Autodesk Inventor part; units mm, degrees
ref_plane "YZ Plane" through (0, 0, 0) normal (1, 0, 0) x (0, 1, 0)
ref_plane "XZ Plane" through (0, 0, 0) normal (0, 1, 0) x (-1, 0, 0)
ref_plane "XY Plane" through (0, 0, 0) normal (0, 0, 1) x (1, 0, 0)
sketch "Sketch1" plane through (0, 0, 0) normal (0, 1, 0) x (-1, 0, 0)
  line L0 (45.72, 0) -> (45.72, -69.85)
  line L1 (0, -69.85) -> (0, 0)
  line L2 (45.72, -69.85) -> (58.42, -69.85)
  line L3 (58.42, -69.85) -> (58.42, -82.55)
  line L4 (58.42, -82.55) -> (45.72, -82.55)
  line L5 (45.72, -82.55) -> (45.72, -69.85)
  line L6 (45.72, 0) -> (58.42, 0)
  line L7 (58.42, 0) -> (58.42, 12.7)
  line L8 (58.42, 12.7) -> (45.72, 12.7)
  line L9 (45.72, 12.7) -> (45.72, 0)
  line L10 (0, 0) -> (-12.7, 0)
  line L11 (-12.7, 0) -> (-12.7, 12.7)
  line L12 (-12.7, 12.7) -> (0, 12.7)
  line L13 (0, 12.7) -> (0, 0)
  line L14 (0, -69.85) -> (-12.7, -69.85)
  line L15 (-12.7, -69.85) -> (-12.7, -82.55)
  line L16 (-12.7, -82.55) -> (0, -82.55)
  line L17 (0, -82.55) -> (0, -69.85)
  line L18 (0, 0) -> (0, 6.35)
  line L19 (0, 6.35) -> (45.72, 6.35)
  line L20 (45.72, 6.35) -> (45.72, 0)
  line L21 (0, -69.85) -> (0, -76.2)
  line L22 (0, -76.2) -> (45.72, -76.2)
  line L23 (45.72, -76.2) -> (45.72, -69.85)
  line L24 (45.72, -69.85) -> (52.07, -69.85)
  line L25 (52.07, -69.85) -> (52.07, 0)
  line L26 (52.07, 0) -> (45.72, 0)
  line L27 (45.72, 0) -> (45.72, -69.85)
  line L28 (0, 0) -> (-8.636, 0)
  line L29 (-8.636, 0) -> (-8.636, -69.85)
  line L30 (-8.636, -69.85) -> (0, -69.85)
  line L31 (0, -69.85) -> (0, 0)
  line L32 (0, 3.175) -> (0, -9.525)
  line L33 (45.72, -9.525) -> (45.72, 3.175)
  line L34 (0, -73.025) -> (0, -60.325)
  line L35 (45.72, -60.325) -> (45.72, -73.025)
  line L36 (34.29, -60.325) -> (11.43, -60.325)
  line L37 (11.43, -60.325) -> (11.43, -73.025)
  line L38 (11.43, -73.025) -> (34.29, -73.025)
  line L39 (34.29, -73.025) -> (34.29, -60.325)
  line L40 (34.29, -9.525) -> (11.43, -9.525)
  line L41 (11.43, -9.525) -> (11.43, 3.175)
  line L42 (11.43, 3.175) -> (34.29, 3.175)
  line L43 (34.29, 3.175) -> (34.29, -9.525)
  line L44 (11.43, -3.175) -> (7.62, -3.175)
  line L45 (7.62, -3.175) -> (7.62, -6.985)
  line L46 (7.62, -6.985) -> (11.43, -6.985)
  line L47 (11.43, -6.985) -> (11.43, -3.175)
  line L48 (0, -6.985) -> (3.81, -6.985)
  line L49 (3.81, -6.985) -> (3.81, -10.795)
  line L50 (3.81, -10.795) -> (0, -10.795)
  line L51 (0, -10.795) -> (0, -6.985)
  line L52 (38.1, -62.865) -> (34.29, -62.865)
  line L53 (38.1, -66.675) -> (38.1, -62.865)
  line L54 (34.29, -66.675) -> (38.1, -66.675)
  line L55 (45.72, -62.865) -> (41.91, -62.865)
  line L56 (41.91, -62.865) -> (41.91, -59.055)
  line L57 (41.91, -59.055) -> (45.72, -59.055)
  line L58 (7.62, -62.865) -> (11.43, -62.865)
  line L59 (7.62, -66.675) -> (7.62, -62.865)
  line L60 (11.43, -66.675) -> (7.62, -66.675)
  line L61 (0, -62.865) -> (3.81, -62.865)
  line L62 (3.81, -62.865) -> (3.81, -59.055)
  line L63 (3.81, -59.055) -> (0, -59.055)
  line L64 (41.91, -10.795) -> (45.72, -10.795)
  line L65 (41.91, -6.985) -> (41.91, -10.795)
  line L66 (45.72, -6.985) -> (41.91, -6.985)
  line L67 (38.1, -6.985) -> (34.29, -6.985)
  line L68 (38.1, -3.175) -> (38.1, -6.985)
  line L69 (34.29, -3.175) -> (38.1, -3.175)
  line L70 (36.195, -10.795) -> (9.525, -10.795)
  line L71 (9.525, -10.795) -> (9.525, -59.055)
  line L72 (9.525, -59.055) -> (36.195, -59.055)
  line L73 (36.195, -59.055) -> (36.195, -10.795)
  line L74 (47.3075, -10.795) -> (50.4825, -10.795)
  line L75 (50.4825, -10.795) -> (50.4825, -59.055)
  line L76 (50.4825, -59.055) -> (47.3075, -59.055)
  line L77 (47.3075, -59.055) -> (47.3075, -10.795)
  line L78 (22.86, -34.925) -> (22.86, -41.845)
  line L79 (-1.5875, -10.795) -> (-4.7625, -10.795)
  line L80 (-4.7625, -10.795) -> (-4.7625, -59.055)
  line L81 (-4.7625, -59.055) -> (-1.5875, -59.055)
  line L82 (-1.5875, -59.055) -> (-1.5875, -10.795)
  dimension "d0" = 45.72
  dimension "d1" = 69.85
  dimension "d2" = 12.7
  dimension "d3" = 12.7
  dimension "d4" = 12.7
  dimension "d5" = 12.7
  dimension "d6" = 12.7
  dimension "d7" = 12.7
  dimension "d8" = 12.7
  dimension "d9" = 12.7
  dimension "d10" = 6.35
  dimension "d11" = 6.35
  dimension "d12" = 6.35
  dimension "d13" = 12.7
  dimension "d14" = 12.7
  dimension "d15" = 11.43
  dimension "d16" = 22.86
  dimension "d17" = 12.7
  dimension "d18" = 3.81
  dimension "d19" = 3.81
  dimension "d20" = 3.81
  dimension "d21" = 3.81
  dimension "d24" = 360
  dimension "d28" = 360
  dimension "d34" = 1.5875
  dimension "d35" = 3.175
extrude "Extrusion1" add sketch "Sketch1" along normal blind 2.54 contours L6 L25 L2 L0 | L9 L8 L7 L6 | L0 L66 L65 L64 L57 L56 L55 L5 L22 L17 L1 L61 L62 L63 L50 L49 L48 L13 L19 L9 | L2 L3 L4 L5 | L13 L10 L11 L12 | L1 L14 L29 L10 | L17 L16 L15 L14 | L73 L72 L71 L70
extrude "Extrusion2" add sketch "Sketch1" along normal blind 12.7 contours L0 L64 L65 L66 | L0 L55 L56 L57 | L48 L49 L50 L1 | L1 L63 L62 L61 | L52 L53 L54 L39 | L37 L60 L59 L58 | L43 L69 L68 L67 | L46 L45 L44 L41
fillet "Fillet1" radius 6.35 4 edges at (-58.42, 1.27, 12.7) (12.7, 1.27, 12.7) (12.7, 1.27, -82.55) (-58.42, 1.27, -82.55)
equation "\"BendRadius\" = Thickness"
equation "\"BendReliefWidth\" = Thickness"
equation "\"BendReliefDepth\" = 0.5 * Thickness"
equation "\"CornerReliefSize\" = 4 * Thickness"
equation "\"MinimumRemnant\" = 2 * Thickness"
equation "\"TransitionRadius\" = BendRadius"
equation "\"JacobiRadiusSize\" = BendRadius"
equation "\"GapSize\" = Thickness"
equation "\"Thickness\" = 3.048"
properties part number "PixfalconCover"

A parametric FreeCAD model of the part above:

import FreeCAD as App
import Part
import Sketcher

V = App.Vector
Q = App.Units.Quantity


def edges_at(feature, points):
    """Names of the edges that pass closest to the given points."""
    edges = feature.Shape.Edges
    near = lambda p: min(range(len(edges)), key=lambda i: edges[i].distToShape(Part.Vertex(*p))[0])
    return sorted({f"Edge{near(p) + 1}" for p in points})


def add_polygon(sketch, points):
    """Adds a closed chain of lines whose ends are joined by coincident constraints."""
    first, n = sketch.GeometryCount, len(points)
    for a, b in zip(points, points[1:] + points[:1]):
        sketch.addGeometry(Part.LineSegment(App.Vector(*a, 0), App.Vector(*b, 0)), False)
    for i in range(n):
        sketch.addConstraint(Sketcher.Constraint("Coincident", first + i, 2, first + (i + 1) % n, 1))

doc = App.newDocument("Part")
body = doc.addObject("PartDesign::Body", "Body")

# Sketch on XZ plane
sketch1 = doc.addObject("Sketcher::SketchObject", "Sketch")
body.addObject(sketch1)
sketch1.AttachmentSupport = (doc.XZ_Plane, [""])
sketch1.MapMode = "FlatFace"
add_polygon(sketch1, [(-52.1, -69.8), (-52.1, 0), (-58.4, 0), (-58.4, 12.7), (-45.7, 12.7), (-45.7, 6.3), (0, 6.3), (0, 12.7), (12.7, 12.7), (12.7, 0), (8.6, 0), (8.6, -69.8), (12.7, -69.8), (12.7, -82.5), (0, -82.5), (0, -76.2), (-45.7, -76.2), (-45.7, -82.5), (-58.4, -82.5), (-58.4, -69.8)])  # lines 0-19
add_polygon(sketch1, [(-45.7, -62.9), (-41.9, -62.9), (-41.9, -59.1), (-45.7, -59.1)])  # lines 20-23
add_polygon(sketch1, [(-45.7, -10.8), (-41.9, -10.8), (-41.9, -7), (-45.7, -7)])  # lines 24-27
add_polygon(sketch1, [(-47.3, -59.1), (-47.3, -10.8), (-50.5, -10.8), (-50.5, -59.1)])  # lines 28-31
add_polygon(sketch1, [(-11.4, -7), (-7.6, -7), (-7.6, -3.2), (-11.4, -3.2), (-11.4, 3.2), (-34.3, 3.2), (-34.3, -3.2), (-38.1, -3.2), (-38.1, -7), (-34.3, -7), (-34.3, -9.5), (-11.4, -9.5)])  # lines 32-43
add_polygon(sketch1, [(-3.8, -62.9), (0, -62.9), (0, -59.1), (-3.8, -59.1)])  # lines 44-47
add_polygon(sketch1, [(-3.8, -10.8), (0, -10.8), (0, -7), (-3.8, -7)])  # lines 48-51
add_polygon(sketch1, [(-11.4, -60.3), (-34.3, -60.3), (-34.3, -62.9), (-38.1, -62.9), (-38.1, -66.7), (-34.3, -66.7), (-34.3, -73), (-11.4, -73), (-11.4, -66.7), (-7.6, -66.7), (-7.6, -62.9), (-11.4, -62.9)])  # lines 52-63
add_polygon(sketch1, [(4.8, -59.1), (4.8, -10.8), (1.6, -10.8), (1.6, -59.1)])  # lines 64-67
sketch1.addConstraint(Sketcher.Constraint("Vertical", 0))
sketch1.addConstraint(Sketcher.Constraint("Horizontal", 1))
sketch1.addConstraint(Sketcher.Constraint("Vertical", 2))
sketch1.addConstraint(Sketcher.Constraint("Horizontal", 3))
sketch1.addConstraint(Sketcher.Constraint("Vertical", 4))
sketch1.addConstraint(Sketcher.Constraint("Horizontal", 5))
sketch1.addConstraint(Sketcher.Constraint("Vertical", 6))
sketch1.addConstraint(Sketcher.Constraint("Horizontal", 7))
sketch1.addConstraint(Sketcher.Constraint("Vertical", 8))
sketch1.addConstraint(Sketcher.Constraint("Horizontal", 9))
sketch1.addConstraint(Sketcher.Constraint("Vertical", 10))
sketch1.addConstraint(Sketcher.Constraint("Horizontal", 11))
sketch1.addConstraint(Sketcher.Constraint("Vertical", 12))
sketch1.addConstraint(Sketcher.Constraint("Horizontal", 13))
sketch1.addConstraint(Sketcher.Constraint("Vertical", 14))
sketch1.addConstraint(Sketcher.Constraint("Horizontal", 15))
sketch1.addConstraint(Sketcher.Constraint("Vertical", 16))
sketch1.addConstraint(Sketcher.Constraint("Horizontal", 17))
sketch1.addConstraint(Sketcher.Constraint("Vertical", 18))
sketch1.addConstraint(Sketcher.Constraint("Horizontal", 19))
sketch1.addConstraint(Sketcher.Constraint("Horizontal", 20))
sketch1.addConstraint(Sketcher.Constraint("Vertical", 21))
sketch1.addConstraint(Sketcher.Constraint("Horizontal", 22))
sketch1.addConstraint(Sketcher.Constraint("Vertical", 23))
sketch1.addConstraint(Sketcher.Constraint("Horizontal", 24))
sketch1.addConstraint(Sketcher.Constraint("Vertical", 25))
sketch1.addConstraint(Sketcher.Constraint("Horizontal", 26))
sketch1.addConstraint(Sketcher.Constraint("Vertical", 27))
sketch1.addConstraint(Sketcher.Constraint("Vertical", 28))
sketch1.addConstraint(Sketcher.Constraint("Horizontal", 29))
sketch1.addConstraint(Sketcher.Constraint("Vertical", 30))
sketch1.addConstraint(Sketcher.Constraint("Horizontal", 31))
sketch1.addConstraint(Sketcher.Constraint("Horizontal", 32))
sketch1.addConstraint(Sketcher.Constraint("Vertical", 33))
sketch1.addConstraint(Sketcher.Constraint("Horizontal", 34))
sketch1.addConstraint(Sketcher.Constraint("Vertical", 35))
sketch1.addConstraint(Sketcher.Constraint("Horizontal", 36))
sketch1.addConstraint(Sketcher.Constraint("Vertical", 37))
sketch1.addConstraint(Sketcher.Constraint("Horizontal", 38))
sketch1.addConstraint(Sketcher.Constraint("Vertical", 39))
sketch1.addConstraint(Sketcher.Constraint("Horizontal", 40))
sketch1.addConstraint(Sketcher.Constraint("Vertical", 41))
sketch1.addConstraint(Sketcher.Constraint("Horizontal", 42))
sketch1.addConstraint(Sketcher.Constraint("Vertical", 43))
sketch1.addConstraint(Sketcher.Constraint("Horizontal", 44))
sketch1.addConstraint(Sketcher.Constraint("Vertical", 45))
sketch1.addConstraint(Sketcher.Constraint("Horizontal", 46))
sketch1.addConstraint(Sketcher.Constraint("Vertical", 47))
sketch1.addConstraint(Sketcher.Constraint("Horizontal", 48))
sketch1.addConstraint(Sketcher.Constraint("Vertical", 49))
sketch1.addConstraint(Sketcher.Constraint("Horizontal", 50))
sketch1.addConstraint(Sketcher.Constraint("Vertical", 51))
sketch1.addConstraint(Sketcher.Constraint("Horizontal", 52))
sketch1.addConstraint(Sketcher.Constraint("Vertical", 53))
sketch1.addConstraint(Sketcher.Constraint("Horizontal", 54))
sketch1.addConstraint(Sketcher.Constraint("Vertical", 55))
sketch1.addConstraint(Sketcher.Constraint("Horizontal", 56))
sketch1.addConstraint(Sketcher.Constraint("Vertical", 57))
sketch1.addConstraint(Sketcher.Constraint("Horizontal", 58))
sketch1.addConstraint(Sketcher.Constraint("Vertical", 59))
sketch1.addConstraint(Sketcher.Constraint("Horizontal", 60))
sketch1.addConstraint(Sketcher.Constraint("Vertical", 61))
sketch1.addConstraint(Sketcher.Constraint("Horizontal", 62))
sketch1.addConstraint(Sketcher.Constraint("Vertical", 63))
sketch1.addConstraint(Sketcher.Constraint("Vertical", 64))
sketch1.addConstraint(Sketcher.Constraint("Horizontal", 65))
sketch1.addConstraint(Sketcher.Constraint("Vertical", 66))
sketch1.addConstraint(Sketcher.Constraint("Horizontal", 67))
sketch1.addConstraint(Sketcher.Constraint("PointOnObject", 0, 2, -1))
sketch1.addConstraint(Sketcher.Constraint("PointOnObject", 5, 2, -2))
sketch1.addConstraint(Sketcher.Constraint("PointOnObject", 8, 2, -1))
sketch1.addConstraint(Sketcher.Constraint("PointOnObject", 13, 2, -2))
sketch1.addConstraint(Sketcher.Constraint("PointOnObject", 44, 2, -2))
sketch1.addConstraint(Sketcher.Constraint("PointOnObject", 48, 2, -2))
sketch1.addConstraint(Sketcher.Constraint("Horizontal", 3, 2, 6, 2))
sketch1.addConstraint(Sketcher.Constraint("Horizontal", 13, 2, 16, 2))
sketch1.addConstraint(Sketcher.Constraint("Horizontal", 11, 2, 18, 2))
sketch1.addConstraint(Sketcher.Constraint("Horizontal", 27, 2, 28, 2))
sketch1.addConstraint(Sketcher.Constraint("Horizontal", 22, 2, 30, 2))
sketch1.addConstraint(Sketcher.Constraint("Horizontal", 26, 2, 32, 2))
sketch1.addConstraint(Sketcher.Constraint("Horizontal", 34, 2, 37, 2))
sketch1.addConstraint(Sketcher.Constraint("Horizontal", 32, 2, 39, 2))
sketch1.addConstraint(Sketcher.Constraint("Horizontal", 23, 2, 44, 2))
sketch1.addConstraint(Sketcher.Constraint("Horizontal", 31, 2, 45, 2))
sketch1.addConstraint(Sketcher.Constraint("Horizontal", 29, 2, 48, 2))
sketch1.addConstraint(Sketcher.Constraint("Horizontal", 43, 2, 49, 2))
sketch1.addConstraint(Sketcher.Constraint("Horizontal", 47, 2, 53, 2))
sketch1.addConstraint(Sketcher.Constraint("Horizontal", 56, 2, 59, 2))
sketch1.addConstraint(Sketcher.Constraint("Horizontal", 54, 2, 61, 2))
sketch1.addConstraint(Sketcher.Constraint("Horizontal", 51, 2, 64, 2))
sketch1.addConstraint(Sketcher.Constraint("Horizontal", 46, 2, 66, 2))
sketch1.addConstraint(Sketcher.Constraint("Vertical", 8, 2, 11, 2))
sketch1.addConstraint(Sketcher.Constraint("Vertical", 4, 2, 15, 2))
sketch1.addConstraint(Sketcher.Constraint("Vertical", 2, 2, 17, 2))
sketch1.addConstraint(Sketcher.Constraint("Vertical", 16, 2, 22, 2))
sketch1.addConstraint(Sketcher.Constraint("Vertical", 21, 2, 24, 2))
sketch1.addConstraint(Sketcher.Constraint("Vertical", 23, 2, 26, 2))
sketch1.addConstraint(Sketcher.Constraint("Vertical", 37, 2, 40, 2))
sketch1.addConstraint(Sketcher.Constraint("Vertical", 35, 2, 42, 2))
sketch1.addConstraint(Sketcher.Constraint("Vertical", 47, 2, 50, 2))
sketch1.addConstraint(Sketcher.Constraint("Vertical", 41, 2, 52, 2))
sketch1.addConstraint(Sketcher.Constraint("Vertical", 39, 2, 54, 2))
sketch1.addConstraint(Sketcher.Constraint("Vertical", 53, 2, 56, 2))
sketch1.addConstraint(Sketcher.Constraint("Vertical", 43, 2, 58, 2))
sketch1.addConstraint(Sketcher.Constraint("Vertical", 33, 2, 60, 2))
sketch1.addConstraint(Sketcher.Constraint("Vertical", 59, 2, 62, 2))
sketch1.addConstraint(Sketcher.Constraint("Equal", 3, 7))
sketch1.addConstraint(Sketcher.Constraint("Equal", 26, 32))
sketch1.addConstraint(Sketcher.Constraint("Equal", 34, 38))
sketch1.addConstraint(Sketcher.Constraint("Equal", 40, 44))
sketch1.addConstraint(Sketcher.Constraint("Equal", 31, 65))
sketch1.addConstraint(Sketcher.Constraint("Equal", 17, 2))
sketch1.addConstraint(Sketcher.Constraint("Equal", 19, 4))
sketch1.addConstraint(Sketcher.Constraint("Equal", 8, 12))
sketch1.addConstraint(Sketcher.Constraint("Equal", 6, 14))
sketch1.addConstraint(Sketcher.Constraint("Equal", 62, 21))
sketch1.addConstraint(Sketcher.Constraint("Equal", 23, 25))
sketch1.addConstraint(Sketcher.Constraint("Equal", 27, 33))
sketch1.addConstraint(Sketcher.Constraint("Equal", 16, 35))
sketch1.addConstraint(Sketcher.Constraint("Equal", 43, 53))
sketch1.addConstraint(Sketcher.Constraint("Equal", 51, 55))
sketch1.addConstraint(Sketcher.Constraint("Equal", 37, 57))
sketch1.addConstraint(Sketcher.Constraint("DistanceX", 3, 1, 3, 2, Q("0.5 in")))
sketch1.addConstraint(Sketcher.Constraint("DistanceX", 5, 1, 5, 2, Q("1.8 in")))
sketch1.addConstraint(Sketcher.Constraint("DistanceX", 36, 2, 36, 1, Q("0.9 in")))
sketch1.addConstraint(Sketcher.Constraint("DistanceX", 1, 2, 1, 1, Q("0.25 in")))
sketch1.addConstraint(Sketcher.Constraint("DistanceX", 20, 1, 20, 2, Q("0.15 in")))
sketch1.addConstraint(Sketcher.Constraint("DistanceY", 0, 1, 0, 2, Q("2.75 in")))
sketch1.addConstraint(Sketcher.Constraint("DistanceX", 29, 2, 29, 1, Q("0.125 in")))
sketch1.addConstraint(Sketcher.Constraint("DistanceX", 34, 2, -1, 1, Q("0.45 in")))
sketch1.addConstraint(Sketcher.Constraint("DistanceY", 28, 1, 28, 2, Q("1.9 in")))
sketch1.addConstraint(Sketcher.Constraint("DistanceY", 41, 2, 41, 1, Q("0.1 in")))
sketch1.addConstraint(Sketcher.Constraint("DistanceY", 33, 2, -1, 1, Q("0.125 in")))
sketch1.addConstraint(Sketcher.Constraint("DistanceX", -1, 1, 65, 2, Q("0.0625 in")))
sketch1.addConstraint(Sketcher.Constraint("DistanceX", 9, 2, 9, 1, Q("0.16 in")))
sketch1.addConstraint(Sketcher.Constraint("DistanceX", 28, 2, -1, 1, Q("1.8625 in")))
pad1 = doc.addObject("PartDesign::Pad", "Pad")
body.addObject(pad1)
pad1.Profile = sketch1
pad1.Length = Q("0.1 in")
pad1.Reversed = True

# Sketch on XZ plane
sketch2 = doc.addObject("Sketcher::SketchObject", "Sketch001")
body.addObject(sketch2)
sketch2.AttachmentSupport = (doc.XZ_Plane, [""])
sketch2.MapMode = "FlatFace"
add_polygon(sketch2, [(-45.7, -10.8), (-45.7, -7), (-41.9, -7), (-41.9, -10.8)])  # lines 0-3
add_polygon(sketch2, [(-45.7, -62.9), (-45.7, -59.1), (-41.9, -59.1), (-41.9, -62.9)])  # lines 4-7
add_polygon(sketch2, [(-3.8, -7), (0, -7), (0, -10.8), (-3.8, -10.8)])  # lines 8-11
add_polygon(sketch2, [(0, -59.1), (0, -62.9), (-3.8, -62.9), (-3.8, -59.1)])  # lines 12-15
add_polygon(sketch2, [(-38.1, -62.9), (-34.3, -62.9), (-34.3, -66.7), (-38.1, -66.7)])  # lines 16-19
add_polygon(sketch2, [(-11.4, -66.7), (-11.4, -62.9), (-7.6, -62.9), (-7.6, -66.7)])  # lines 20-23
add_polygon(sketch2, [(-34.3, -3.2), (-34.3, -7), (-38.1, -7), (-38.1, -3.2)])  # lines 24-27
add_polygon(sketch2, [(-7.6, -7), (-11.4, -7), (-11.4, -3.2), (-7.6, -3.2)])  # lines 28-31
sketch2.addConstraint(Sketcher.Constraint("Vertical", 0))
sketch2.addConstraint(Sketcher.Constraint("Horizontal", 1))
sketch2.addConstraint(Sketcher.Constraint("Vertical", 2))
sketch2.addConstraint(Sketcher.Constraint("Horizontal", 3))
sketch2.addConstraint(Sketcher.Constraint("Vertical", 4))
sketch2.addConstraint(Sketcher.Constraint("Horizontal", 5))
sketch2.addConstraint(Sketcher.Constraint("Vertical", 6))
sketch2.addConstraint(Sketcher.Constraint("Horizontal", 7))
sketch2.addConstraint(Sketcher.Constraint("Horizontal", 8))
sketch2.addConstraint(Sketcher.Constraint("Vertical", 9))
sketch2.addConstraint(Sketcher.Constraint("Horizontal", 10))
sketch2.addConstraint(Sketcher.Constraint("Vertical", 11))
sketch2.addConstraint(Sketcher.Constraint("Vertical", 12))
sketch2.addConstraint(Sketcher.Constraint("Horizontal", 13))
sketch2.addConstraint(Sketcher.Constraint("Vertical", 14))
sketch2.addConstraint(Sketcher.Constraint("Horizontal", 15))
sketch2.addConstraint(Sketcher.Constraint("Horizontal", 16))
sketch2.addConstraint(Sketcher.Constraint("Vertical", 17))
sketch2.addConstraint(Sketcher.Constraint("Horizontal", 18))
sketch2.addConstraint(Sketcher.Constraint("Vertical", 19))
sketch2.addConstraint(Sketcher.Constraint("Vertical", 20))
sketch2.addConstraint(Sketcher.Constraint("Horizontal", 21))
sketch2.addConstraint(Sketcher.Constraint("Vertical", 22))
sketch2.addConstraint(Sketcher.Constraint("Horizontal", 23))
sketch2.addConstraint(Sketcher.Constraint("Vertical", 24))
sketch2.addConstraint(Sketcher.Constraint("Horizontal", 25))
sketch2.addConstraint(Sketcher.Constraint("Vertical", 26))
sketch2.addConstraint(Sketcher.Constraint("Horizontal", 27))
sketch2.addConstraint(Sketcher.Constraint("Horizontal", 28))
sketch2.addConstraint(Sketcher.Constraint("Vertical", 29))
sketch2.addConstraint(Sketcher.Constraint("Horizontal", 30))
sketch2.addConstraint(Sketcher.Constraint("Vertical", 31))
sketch2.addConstraint(Sketcher.Constraint("PointOnObject", 8, 2, -2))
sketch2.addConstraint(Sketcher.Constraint("PointOnObject", 12, 2, -2))
sketch2.addConstraint(Sketcher.Constraint("Horizontal", 1, 2, 8, 2))
sketch2.addConstraint(Sketcher.Constraint("Horizontal", 3, 2, 9, 2))
sketch2.addConstraint(Sketcher.Constraint("Horizontal", 7, 2, 12, 2))
sketch2.addConstraint(Sketcher.Constraint("Horizontal", 5, 2, 14, 2))
sketch2.addConstraint(Sketcher.Constraint("Horizontal", 13, 2, 16, 2))
sketch2.addConstraint(Sketcher.Constraint("Horizontal", 19, 2, 20, 2))
sketch2.addConstraint(Sketcher.Constraint("Horizontal", 18, 2, 22, 2))
sketch2.addConstraint(Sketcher.Constraint("Horizontal", 11, 2, 24, 2))
sketch2.addConstraint(Sketcher.Constraint("Horizontal", 25, 2, 28, 2))
sketch2.addConstraint(Sketcher.Constraint("Horizontal", 27, 2, 29, 2))
sketch2.addConstraint(Sketcher.Constraint("Vertical", 3, 2, 4, 2))
sketch2.addConstraint(Sketcher.Constraint("Vertical", 2, 2, 5, 2))
sketch2.addConstraint(Sketcher.Constraint("Vertical", 11, 2, 13, 2))
sketch2.addConstraint(Sketcher.Constraint("Vertical", 17, 2, 24, 2))
sketch2.addConstraint(Sketcher.Constraint("Vertical", 19, 2, 25, 2))
sketch2.addConstraint(Sketcher.Constraint("Vertical", 23, 2, 28, 2))
sketch2.addConstraint(Sketcher.Constraint("Vertical", 22, 2, 30, 2))
sketch2.addConstraint(Sketcher.Constraint("Equal", 7, 8))
sketch2.addConstraint(Sketcher.Constraint("Equal", 15, 16))
sketch2.addConstraint(Sketcher.Constraint("Equal", 18, 21))
sketch2.addConstraint(Sketcher.Constraint("Equal", 30, 0))
sketch2.addConstraint(Sketcher.Constraint("Equal", 2, 4))
sketch2.addConstraint(Sketcher.Constraint("Equal", 14, 17))
sketch2.addConstraint(Sketcher.Constraint("Equal", 22, 24))
sketch2.addConstraint(Sketcher.Constraint("DistanceX", 1, 1, 1, 2, Q("0.15 in")))
sketch2.addConstraint(Sketcher.Constraint("DistanceX", 0, 2, -1, 1, Q("1.8 in")))
sketch2.addConstraint(Sketcher.Constraint("DistanceX", 16, 2, 20, 2, Q("0.9 in")))
sketch2.addConstraint(Sketcher.Constraint("DistanceX", 20, 2, -1, 1, Q("0.45 in")))
sketch2.addConstraint(Sketcher.Constraint("DistanceY", 26, 2, -1, 1, Q("0.125 in")))
sketch2.addConstraint(Sketcher.Constraint("DistanceY", 4, 2, 3, 2, Q("1.9 in")))
pad2 = doc.addObject("PartDesign::Pad", "Pad001")
body.addObject(pad2)
pad2.Profile = sketch2
pad2.Length = Q("0.5 in")
pad2.Reversed = True
doc.recompute()

fillet = doc.addObject("PartDesign::Fillet", "Fillet")
body.addObject(fillet)
fillet.Base = (pad2, edges_at(pad2, [
    (-58.42, 1.27, 12.7),
    (12.7, 1.27, 12.7),
    (12.7, 1.27, -82.55),
    (-58.42, 1.27, -82.55),
]))
fillet.Radius = Q("0.25 in")

doc.recompute()
